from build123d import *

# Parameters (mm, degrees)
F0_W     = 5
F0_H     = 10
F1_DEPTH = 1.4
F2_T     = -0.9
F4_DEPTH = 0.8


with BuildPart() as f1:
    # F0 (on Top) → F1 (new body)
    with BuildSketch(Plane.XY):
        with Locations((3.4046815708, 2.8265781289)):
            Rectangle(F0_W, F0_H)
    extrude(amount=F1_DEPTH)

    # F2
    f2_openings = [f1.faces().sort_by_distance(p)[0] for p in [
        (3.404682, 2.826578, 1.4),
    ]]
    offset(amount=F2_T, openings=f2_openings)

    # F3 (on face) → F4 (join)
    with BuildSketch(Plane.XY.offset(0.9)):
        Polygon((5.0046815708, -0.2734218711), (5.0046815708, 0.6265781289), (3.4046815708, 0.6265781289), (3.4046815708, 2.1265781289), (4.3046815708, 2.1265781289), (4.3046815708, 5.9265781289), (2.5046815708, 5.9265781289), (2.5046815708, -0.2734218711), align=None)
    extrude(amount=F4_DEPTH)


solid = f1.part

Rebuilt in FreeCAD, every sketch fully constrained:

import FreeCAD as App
import Part
import Sketcher


def faces_at(feature, points):
    """Names of the faces that lie closest to the given points."""
    faces = feature.Shape.Faces
    near = lambda p: min(range(len(faces)), key=lambda i: faces[i].distToShape(Part.Vertex(*p))[0])
    return sorted({f"Face{near(p) + 1}" for p in points})

doc = App.newDocument("Part")
body = doc.addObject("PartDesign::Body", "Body")

sketch1 = body.newObject("Sketcher::SketchObject", "Sketch")
sketch1.AttachmentSupport = (doc.getObject("XY_Plane"), [""])
sketch1.MapMode = "FlatFace"
sketch1.addGeometry(Part.LineSegment(App.Vector(1, 8, 0), App.Vector(1, -2, 0)), False)
sketch1.addGeometry(Part.LineSegment(App.Vector(1, -2, 0), App.Vector(6, -2, 0)), False)
sketch1.addGeometry(Part.LineSegment(App.Vector(6, -2, 0), App.Vector(6, 8, 0)), False)
sketch1.addGeometry(Part.LineSegment(App.Vector(6, 8, 0), App.Vector(1, 8, 0)), False)
sketch1.addConstraint(Sketcher.Constraint("Coincident", 0, 2, 1, 1))
sketch1.addConstraint(Sketcher.Constraint("Coincident", 1, 2, 2, 1))
sketch1.addConstraint(Sketcher.Constraint("Coincident", 2, 2, 3, 1))
sketch1.addConstraint(Sketcher.Constraint("Coincident", 3, 2, 0, 1))
sketch1.addConstraint(Sketcher.Constraint("Vertical", 0))
sketch1.addConstraint(Sketcher.Constraint("Horizontal", 1))
sketch1.addConstraint(Sketcher.Constraint("Vertical", 2))
sketch1.addConstraint(Sketcher.Constraint("Horizontal", 3))
sketch1.addConstraint(Sketcher.Constraint("DistanceX", 1, 1, 1, 2, 5.0))
sketch1.addConstraint(Sketcher.Constraint("DistanceY", 0, 2, 0, 1, 10.0))
sketch1.addConstraint(Sketcher.Constraint("DistanceX", -1, 1, 0, 2, 0.904682))
sketch1.addConstraint(Sketcher.Constraint("DistanceY", 0, 2, -1, 1, 2.173422))
pad1 = body.newObject("PartDesign::Pad", "Pad")
pad1.Profile = sketch1
pad1.Length = 1.4
doc.recompute()

thickness = body.newObject("PartDesign::Thickness", "Thickness")
thickness.Base = (pad1, faces_at(pad1, [(3.405, 2.827, 1.4)]))
thickness.Value = 0.9
thickness.Reversed = True
thickness.Join = "Arc"

sketch2 = body.newObject("Sketcher::SketchObject", "Sketch001")
sketch2.AttachmentSupport = (doc.getObject("XY_Plane"), [""])
sketch2.MapMode = "FlatFace"
sketch2.AttachmentOffset = App.Placement(App.Vector(0, 0, 0.9), App.Rotation())
sketch2.addGeometry(Part.LineSegment(App.Vector(5, -0.3, 0), App.Vector(5, 0.6, 0)), False)
sketch2.addGeometry(Part.LineSegment(App.Vector(5, 0.6, 0), App.Vector(3.4, 0.6, 0)), False)
sketch2.addGeometry(Part.LineSegment(App.Vector(3.4, 0.6, 0), App.Vector(3.4, 2.1, 0)), False)
sketch2.addGeometry(Part.LineSegment(App.Vector(3.4, 2.1, 0), App.Vector(4.3, 2.1, 0)), False)
sketch2.addGeometry(Part.LineSegment(App.Vector(4.3, 2.1, 0), App.Vector(4.3, 5.9, 0)), False)
sketch2.addGeometry(Part.LineSegment(App.Vector(4.3, 5.9, 0), App.Vector(2.5, 5.9, 0)), False)
sketch2.addGeometry(Part.LineSegment(App.Vector(2.5, 5.9, 0), App.Vector(2.5, -0.3, 0)), False)
sketch2.addGeometry(Part.LineSegment(App.Vector(2.5, -0.3, 0), App.Vector(5, -0.3, 0)), False)
sketch2.addConstraint(Sketcher.Constraint("Coincident", 0, 2, 1, 1))
sketch2.addConstraint(Sketcher.Constraint("Coincident", 1, 2, 2, 1))
sketch2.addConstraint(Sketcher.Constraint("Coincident", 2, 2, 3, 1))
sketch2.addConstraint(Sketcher.Constraint("Coincident", 3, 2, 4, 1))
sketch2.addConstraint(Sketcher.Constraint("Coincident", 4, 2, 5, 1))
sketch2.addConstraint(Sketcher.Constraint("Coincident", 5, 2, 6, 1))
sketch2.addConstraint(Sketcher.Constraint("Coincident", 6, 2, 7, 1))
sketch2.addConstraint(Sketcher.Constraint("Coincident", 7, 2, 0, 1))
sketch2.addConstraint(Sketcher.Constraint("Vertical", 0))
sketch2.addConstraint(Sketcher.Constraint("Horizontal", 1))
sketch2.addConstraint(Sketcher.Constraint("Vertical", 2))
sketch2.addConstraint(Sketcher.Constraint("Horizontal", 3))
sketch2.addConstraint(Sketcher.Constraint("Vertical", 4))
sketch2.addConstraint(Sketcher.Constraint("Horizontal", 5))
sketch2.addConstraint(Sketcher.Constraint("Vertical", 6))
sketch2.addConstraint(Sketcher.Constraint("Horizontal", 7))
sketch2.addConstraint(Sketcher.Constraint("Equal", 3, 0))
sketch2.addConstraint(Sketcher.Constraint("DistanceX", 1, 2, 1, 1, 1.6))
sketch2.addConstraint(Sketcher.Constraint("DistanceX", 3, 1, 3, 2, 0.9))
sketch2.addConstraint(Sketcher.Constraint("DistanceX", 5, 2, 5, 1, 1.8))
sketch2.addConstraint(Sketcher.Constraint("DistanceY", 2, 1, 2, 2, 1.5))
sketch2.addConstraint(Sketcher.Constraint("DistanceY", 4, 1, 4, 2, 3.8))
sketch2.addConstraint(Sketcher.Constraint("DistanceX", -1, 1, 0, 2, 5.004682))
sketch2.addConstraint(Sketcher.Constraint("DistanceY", -1, 1, 0, 2, 0.626578))
pad2 = body.newObject("PartDesign::Pad", "Pad001")
pad2.Profile = sketch2
pad2.Length = 0.8

doc.recompute()
